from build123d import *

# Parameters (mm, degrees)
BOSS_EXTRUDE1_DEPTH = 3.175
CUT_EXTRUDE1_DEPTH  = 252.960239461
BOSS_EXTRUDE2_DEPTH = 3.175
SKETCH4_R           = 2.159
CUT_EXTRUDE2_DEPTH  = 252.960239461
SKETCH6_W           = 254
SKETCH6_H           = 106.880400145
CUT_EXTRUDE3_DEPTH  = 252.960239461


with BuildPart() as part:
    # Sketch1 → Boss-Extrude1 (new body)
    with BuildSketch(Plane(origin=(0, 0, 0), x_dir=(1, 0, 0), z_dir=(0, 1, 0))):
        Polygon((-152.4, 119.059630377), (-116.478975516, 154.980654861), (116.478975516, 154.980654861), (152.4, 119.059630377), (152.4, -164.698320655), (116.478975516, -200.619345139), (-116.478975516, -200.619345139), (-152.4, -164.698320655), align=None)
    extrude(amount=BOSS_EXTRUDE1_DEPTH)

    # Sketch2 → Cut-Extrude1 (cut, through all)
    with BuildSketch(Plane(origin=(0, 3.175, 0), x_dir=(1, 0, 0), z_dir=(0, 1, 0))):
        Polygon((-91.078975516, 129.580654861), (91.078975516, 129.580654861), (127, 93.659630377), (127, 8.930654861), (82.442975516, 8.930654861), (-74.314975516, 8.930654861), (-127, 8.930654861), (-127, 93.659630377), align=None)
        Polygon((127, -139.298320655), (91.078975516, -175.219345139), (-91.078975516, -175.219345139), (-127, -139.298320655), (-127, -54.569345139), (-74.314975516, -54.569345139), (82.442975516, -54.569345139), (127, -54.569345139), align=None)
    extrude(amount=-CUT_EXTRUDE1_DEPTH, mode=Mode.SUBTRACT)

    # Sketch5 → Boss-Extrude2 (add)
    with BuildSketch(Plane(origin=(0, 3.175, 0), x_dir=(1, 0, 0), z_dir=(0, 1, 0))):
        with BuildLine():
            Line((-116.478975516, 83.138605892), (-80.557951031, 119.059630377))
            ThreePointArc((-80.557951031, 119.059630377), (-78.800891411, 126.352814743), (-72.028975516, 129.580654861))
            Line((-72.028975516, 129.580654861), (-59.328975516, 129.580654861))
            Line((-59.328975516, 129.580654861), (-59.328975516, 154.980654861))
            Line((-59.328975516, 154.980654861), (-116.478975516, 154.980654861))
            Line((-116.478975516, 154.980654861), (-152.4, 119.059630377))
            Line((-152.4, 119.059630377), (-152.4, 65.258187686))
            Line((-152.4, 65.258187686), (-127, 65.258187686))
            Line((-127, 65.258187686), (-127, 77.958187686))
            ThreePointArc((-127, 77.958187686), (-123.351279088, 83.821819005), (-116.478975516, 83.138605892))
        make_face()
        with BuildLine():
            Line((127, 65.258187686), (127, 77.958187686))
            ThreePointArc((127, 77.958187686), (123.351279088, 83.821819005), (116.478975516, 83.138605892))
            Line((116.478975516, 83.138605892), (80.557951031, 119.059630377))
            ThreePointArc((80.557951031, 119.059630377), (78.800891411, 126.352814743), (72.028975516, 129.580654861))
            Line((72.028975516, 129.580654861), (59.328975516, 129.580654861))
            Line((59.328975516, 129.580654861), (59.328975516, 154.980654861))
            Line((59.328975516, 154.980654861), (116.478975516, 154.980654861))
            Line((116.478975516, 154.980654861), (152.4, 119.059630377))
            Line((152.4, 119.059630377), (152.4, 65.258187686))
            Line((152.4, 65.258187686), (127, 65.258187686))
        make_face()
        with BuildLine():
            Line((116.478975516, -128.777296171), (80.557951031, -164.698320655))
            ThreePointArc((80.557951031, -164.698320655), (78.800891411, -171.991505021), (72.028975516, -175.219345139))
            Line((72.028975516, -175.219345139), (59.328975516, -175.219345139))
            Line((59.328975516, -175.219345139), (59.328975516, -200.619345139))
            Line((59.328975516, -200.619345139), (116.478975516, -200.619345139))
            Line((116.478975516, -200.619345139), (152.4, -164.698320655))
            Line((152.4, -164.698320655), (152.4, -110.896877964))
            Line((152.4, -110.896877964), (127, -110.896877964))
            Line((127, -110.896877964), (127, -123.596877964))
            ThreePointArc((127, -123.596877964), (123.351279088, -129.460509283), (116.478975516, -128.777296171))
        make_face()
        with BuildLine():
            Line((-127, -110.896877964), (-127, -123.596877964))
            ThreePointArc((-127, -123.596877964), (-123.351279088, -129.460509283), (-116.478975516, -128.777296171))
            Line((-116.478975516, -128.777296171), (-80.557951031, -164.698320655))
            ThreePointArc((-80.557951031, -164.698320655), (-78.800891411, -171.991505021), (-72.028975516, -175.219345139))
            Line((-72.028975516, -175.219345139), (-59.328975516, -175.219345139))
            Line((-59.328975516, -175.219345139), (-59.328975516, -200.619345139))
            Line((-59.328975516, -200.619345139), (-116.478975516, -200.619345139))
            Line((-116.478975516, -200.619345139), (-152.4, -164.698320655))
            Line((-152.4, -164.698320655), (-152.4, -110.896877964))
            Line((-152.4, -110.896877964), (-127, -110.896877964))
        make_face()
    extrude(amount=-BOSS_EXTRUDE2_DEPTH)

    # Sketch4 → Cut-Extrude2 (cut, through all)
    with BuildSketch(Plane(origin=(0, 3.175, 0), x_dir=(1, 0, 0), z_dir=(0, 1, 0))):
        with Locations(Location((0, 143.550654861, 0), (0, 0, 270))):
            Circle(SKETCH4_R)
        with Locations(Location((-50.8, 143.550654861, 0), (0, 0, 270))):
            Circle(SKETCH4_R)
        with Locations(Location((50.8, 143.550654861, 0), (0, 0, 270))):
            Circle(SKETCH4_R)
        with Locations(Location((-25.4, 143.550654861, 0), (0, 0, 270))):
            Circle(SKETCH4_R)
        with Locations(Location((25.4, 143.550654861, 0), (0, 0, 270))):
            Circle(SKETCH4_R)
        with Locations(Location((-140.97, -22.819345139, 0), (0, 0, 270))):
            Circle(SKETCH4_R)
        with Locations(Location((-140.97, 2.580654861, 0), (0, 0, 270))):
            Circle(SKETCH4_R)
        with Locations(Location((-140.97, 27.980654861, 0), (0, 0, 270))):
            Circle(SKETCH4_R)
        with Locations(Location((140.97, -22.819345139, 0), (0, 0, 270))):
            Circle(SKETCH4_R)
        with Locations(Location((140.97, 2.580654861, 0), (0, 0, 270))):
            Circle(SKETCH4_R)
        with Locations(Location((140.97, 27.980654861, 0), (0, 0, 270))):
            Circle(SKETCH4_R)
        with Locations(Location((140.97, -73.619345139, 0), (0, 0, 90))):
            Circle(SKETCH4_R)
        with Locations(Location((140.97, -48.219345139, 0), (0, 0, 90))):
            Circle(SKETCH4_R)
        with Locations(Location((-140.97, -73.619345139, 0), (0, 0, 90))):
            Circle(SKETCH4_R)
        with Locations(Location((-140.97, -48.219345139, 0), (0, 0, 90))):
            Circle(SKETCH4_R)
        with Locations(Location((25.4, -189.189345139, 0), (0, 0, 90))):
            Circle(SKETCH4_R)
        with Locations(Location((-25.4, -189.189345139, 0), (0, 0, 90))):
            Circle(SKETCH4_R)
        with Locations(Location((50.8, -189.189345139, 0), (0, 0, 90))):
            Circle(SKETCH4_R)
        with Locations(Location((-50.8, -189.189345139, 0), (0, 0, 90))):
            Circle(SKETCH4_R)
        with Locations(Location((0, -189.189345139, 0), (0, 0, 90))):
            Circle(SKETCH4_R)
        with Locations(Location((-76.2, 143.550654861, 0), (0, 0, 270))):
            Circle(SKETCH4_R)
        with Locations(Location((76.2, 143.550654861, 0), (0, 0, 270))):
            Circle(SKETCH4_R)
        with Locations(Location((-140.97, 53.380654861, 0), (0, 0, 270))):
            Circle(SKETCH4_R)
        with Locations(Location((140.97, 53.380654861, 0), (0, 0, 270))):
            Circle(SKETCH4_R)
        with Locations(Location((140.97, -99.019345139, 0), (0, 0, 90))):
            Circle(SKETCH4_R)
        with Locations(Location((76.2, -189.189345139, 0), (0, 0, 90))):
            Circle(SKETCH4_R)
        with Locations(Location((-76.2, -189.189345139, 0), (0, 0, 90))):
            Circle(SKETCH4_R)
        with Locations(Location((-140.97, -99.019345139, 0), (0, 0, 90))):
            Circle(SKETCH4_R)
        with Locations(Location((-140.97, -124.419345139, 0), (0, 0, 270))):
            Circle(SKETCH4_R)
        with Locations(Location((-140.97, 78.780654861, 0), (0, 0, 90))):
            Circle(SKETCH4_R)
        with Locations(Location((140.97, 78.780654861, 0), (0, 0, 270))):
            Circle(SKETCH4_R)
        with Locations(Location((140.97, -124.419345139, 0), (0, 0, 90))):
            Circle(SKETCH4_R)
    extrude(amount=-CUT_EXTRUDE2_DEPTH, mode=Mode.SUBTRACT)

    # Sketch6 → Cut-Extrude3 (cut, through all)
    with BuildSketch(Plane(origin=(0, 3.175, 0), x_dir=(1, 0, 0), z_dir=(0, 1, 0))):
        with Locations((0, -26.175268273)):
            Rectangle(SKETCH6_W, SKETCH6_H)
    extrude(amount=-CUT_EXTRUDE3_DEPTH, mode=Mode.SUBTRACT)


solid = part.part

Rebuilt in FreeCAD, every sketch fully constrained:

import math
import FreeCAD as App
import Part
import Sketcher

V = App.Vector
Q = App.Units.Quantity

doc = App.newDocument("Part")
body = doc.addObject("PartDesign::Body", "Body")

# Sketch on XZ plane
sketch1 = body.newObject("Sketcher::SketchObject", "Sketch")
sketch1.AttachmentSupport = (doc.getObject("XZ_Plane"), [""])
sketch1.MapMode = "FlatFace"
sketch1.addGeometry(Part.LineSegment(V(-116, -155, 0), V(-152, -119, 0)), False)
sketch1.addGeometry(Part.LineSegment(V(-152, -119, 0), V(-152, 165, 0)), False)
sketch1.addGeometry(Part.LineSegment(V(-152, 165, 0), V(-116, 201, 0)), False)
sketch1.addGeometry(Part.LineSegment(V(-116, 201, 0), V(116, 201, 0)), False)
sketch1.addGeometry(Part.LineSegment(V(116, 201, 0), V(152, 165, 0)), False)
sketch1.addGeometry(Part.LineSegment(V(152, 165, 0), V(152, -119, 0)), False)
sketch1.addGeometry(Part.LineSegment(V(152, -119, 0), V(116, -155, 0)), False)
sketch1.addGeometry(Part.LineSegment(V(116, -155, 0), V(-116, -155, 0)), False)
sketch1.addConstraint(Sketcher.Constraint("Coincident", 0, 2, 1, 1))
sketch1.addConstraint(Sketcher.Constraint("Coincident", 1, 2, 2, 1))
sketch1.addConstraint(Sketcher.Constraint("Coincident", 2, 2, 3, 1))
sketch1.addConstraint(Sketcher.Constraint("Coincident", 3, 2, 4, 1))
sketch1.addConstraint(Sketcher.Constraint("Coincident", 4, 2, 5, 1))
sketch1.addConstraint(Sketcher.Constraint("Coincident", 5, 2, 6, 1))
sketch1.addConstraint(Sketcher.Constraint("Coincident", 6, 2, 7, 1))
sketch1.addConstraint(Sketcher.Constraint("Coincident", 7, 2, 0, 1))
sketch1.addConstraint(Sketcher.Constraint("Vertical", 1))
sketch1.addConstraint(Sketcher.Constraint("Horizontal", 3))
sketch1.addConstraint(Sketcher.Constraint("Vertical", 5))
sketch1.addConstraint(Sketcher.Constraint("Horizontal", 7))
sketch1.addConstraint(Sketcher.Constraint("Symmetric", 1, 2, 4, 2, -2))
sketch1.addConstraint(Sketcher.Constraint("Perpendicular", 0, 2))
sketch1.addConstraint(Sketcher.Constraint("Perpendicular", 2, 4))
sketch1.addConstraint(Sketcher.Constraint("Perpendicular", 4, 6))
sketch1.addConstraint(Sketcher.Constraint("Horizontal", 0, 2, 5, 2))
sketch1.addConstraint(Sketcher.Constraint("Vertical", 3, 2, 6, 2))
sketch1.addConstraint(Sketcher.Constraint("Vertical", 2, 2, 7, 2))
sketch1.addConstraint(Sketcher.Constraint("Distance", 0, Q("2 in")))
sketch1.addConstraint(Sketcher.Constraint("DistanceX", 0, 2, -1, 1, Q("6 in")))
sketch1.addConstraint(Sketcher.Constraint("DistanceY", 6, 2, 3, 2, Q("14 in")))
sketch1.addConstraint(Sketcher.Constraint("DistanceY", 0, 2, -1, 1, Q("119.05963 mm")))
pad1 = body.newObject("PartDesign::Pad", "Pad")
pad1.Profile = sketch1
pad1.Length = Q("0.125 in")
pad1.Reversed = True

# Sketch on XZ plane
sketch2 = body.newObject("Sketcher::SketchObject", "Sketch001")
sketch2.AttachmentSupport = (doc.getObject("XZ_Plane"), [""])
sketch2.MapMode = "FlatFace"
sketch2.AttachmentOffset = App.Placement(V(0, 0, -0.125 * 25.4), App.Rotation())
sketch2.addGeometry(Part.LineSegment(V(91, -130, 0), V(-91, -130, 0)), False)
sketch2.addGeometry(Part.LineSegment(V(-91, -130, 0), V(-127, -94, 0)), False)
sketch2.addGeometry(Part.LineSegment(V(-127, -94, 0), V(-127, -9, 0)), False)
sketch2.addGeometry(Part.LineSegment(V(-127, -9, 0), V(127, -9, 0)), False)
sketch2.addGeometry(Part.LineSegment(V(127, -9, 0), V(127, -94, 0)), False)
sketch2.addGeometry(Part.LineSegment(V(127, -94, 0), V(91, -130, 0)), False)
sketch2.addGeometry(Part.LineSegment(V(91, 175, 0), V(127, 139, 0)), False)
sketch2.addGeometry(Part.LineSegment(V(127, 139, 0), V(127, 55, 0)), False)
sketch2.addGeometry(Part.LineSegment(V(127, 55, 0), V(-127, 55, 0)), False)
sketch2.addGeometry(Part.LineSegment(V(-127, 55, 0), V(-127, 139, 0)), False)
sketch2.addGeometry(Part.LineSegment(V(-127, 139, 0), V(-91, 175, 0)), False)
sketch2.addGeometry(Part.LineSegment(V(-91, 175, 0), V(91, 175, 0)), False)
sketch2.addConstraint(Sketcher.Constraint("Coincident", 0, 2, 1, 1))
sketch2.addConstraint(Sketcher.Constraint("Coincident", 1, 2, 2, 1))
sketch2.addConstraint(Sketcher.Constraint("Coincident", 2, 2, 3, 1))
sketch2.addConstraint(Sketcher.Constraint("Coincident", 3, 2, 4, 1))
sketch2.addConstraint(Sketcher.Constraint("Coincident", 4, 2, 5, 1))
sketch2.addConstraint(Sketcher.Constraint("Coincident", 5, 2, 0, 1))
sketch2.addConstraint(Sketcher.Constraint("Coincident", 6, 2, 7, 1))
sketch2.addConstraint(Sketcher.Constraint("Coincident", 7, 2, 8, 1))
sketch2.addConstraint(Sketcher.Constraint("Coincident", 8, 2, 9, 1))
sketch2.addConstraint(Sketcher.Constraint("Coincident", 9, 2, 10, 1))
sketch2.addConstraint(Sketcher.Constraint("Coincident", 10, 2, 11, 1))
sketch2.addConstraint(Sketcher.Constraint("Coincident", 11, 2, 6, 1))
sketch2.addConstraint(Sketcher.Constraint("Horizontal", 0))
sketch2.addConstraint(Sketcher.Constraint("Vertical", 2))
sketch2.addConstraint(Sketcher.Constraint("Horizontal", 3))
sketch2.addConstraint(Sketcher.Constraint("Vertical", 4))
sketch2.addConstraint(Sketcher.Constraint("Vertical", 7))
sketch2.addConstraint(Sketcher.Constraint("Horizontal", 8))
sketch2.addConstraint(Sketcher.Constraint("Vertical", 9))
sketch2.addConstraint(Sketcher.Constraint("Horizontal", 11))
sketch2.addConstraint(Sketcher.Constraint("Symmetric", 1, 2, 4, 2, -2))
sketch2.addConstraint(Sketcher.Constraint("Symmetric", 6, 2, 9, 2, -2))
sketch2.addConstraint(Sketcher.Constraint("Perpendicular", 1, 5))
sketch2.addConstraint(Sketcher.Constraint("Perpendicular", 5, 6))
sketch2.addConstraint(Sketcher.Constraint("Perpendicular", 6, 10))
sketch2.addConstraint(Sketcher.Constraint("Vertical", 4, 2, 6, 2))
sketch2.addConstraint(Sketcher.Constraint("Vertical", 0, 2, 10, 2))
sketch2.addConstraint(Sketcher.Constraint("Vertical", 5, 2, 11, 2))
sketch2.addConstraint(Sketcher.Constraint("Equal", 4, 7))
sketch2.addConstraint(Sketcher.Constraint("DistanceX", 3, 1, 3, 2, Q("10 in")))
sketch2.addConstraint(Sketcher.Constraint("Distance", 1, Q("2 in")))
sketch2.addConstraint(Sketcher.Constraint("DistanceY", 3, 2, 7, 2, Q("2.5 in")))
sketch2.addConstraint(Sketcher.Constraint("DistanceY", 0, 2, 2, 2, Q("4.75 in")))
sketch2.addConstraint(Sketcher.Constraint("DistanceY", 1, 2, -1, 1, Q("93.65963 mm")))
pocket1 = body.newObject("PartDesign::Pocket", "Pocket")
pocket1.Profile = sketch2
pocket1.Type = "ThroughAll"
pocket1.Reversed = True

# Sketch on XZ plane
sketch3 = body.newObject("Sketcher::SketchObject", "Sketch002")
sketch3.AttachmentSupport = (doc.getObject("XZ_Plane"), [""])
sketch3.MapMode = "FlatFace"
sketch3.AttachmentOffset = App.Placement(V(0, 0, -0.125 * 25.4), App.Rotation())
sketch3.addGeometry(Part.LineSegment(V(-116, -83, 0), V(-81, -119, 0)), False)
sketch3.addGeometry(Part.ArcOfCircle(Part.Circle(V(-72, -121, 0), V(0, 0, 1), 9), math.radians(168), math.radians(270)), False)
sketch3.addGeometry(Part.LineSegment(V(-72, -130, 0), V(-59, -130, 0)), False)
sketch3.addGeometry(Part.LineSegment(V(-59, -130, 0), V(-59, -155, 0)), False)
sketch3.addGeometry(Part.LineSegment(V(-59, -155, 0), V(-116, -155, 0)), False)
sketch3.addGeometry(Part.LineSegment(V(-116, -155, 0), V(-152, -119, 0)), False)
sketch3.addGeometry(Part.LineSegment(V(-152, -119, 0), V(-152, -65, 0)), False)
sketch3.addGeometry(Part.LineSegment(V(-152, -65, 0), V(-127, -65, 0)), False)
sketch3.addGeometry(Part.LineSegment(V(-127, -65, 0), V(-127, -78, 0)), False)
sketch3.addGeometry(Part.ArcOfCircle(Part.Circle(V(-120, -78, 0), V(0, 0, 1), 7), math.radians(180), math.radians(308)), False)
sketch3.addGeometry(Part.LineSegment(V(127, -78, 0), V(127, -65, 0)), False)
sketch3.addGeometry(Part.LineSegment(V(127, -65, 0), V(152, -65, 0)), False)
sketch3.addGeometry(Part.LineSegment(V(152, -65, 0), V(152, -119, 0)), False)
sketch3.addGeometry(Part.LineSegment(V(152, -119, 0), V(116, -155, 0)), False)
sketch3.addGeometry(Part.LineSegment(V(116, -155, 0), V(59, -155, 0)), False)
sketch3.addGeometry(Part.LineSegment(V(59, -155, 0), V(59, -130, 0)), False)
sketch3.addGeometry(Part.LineSegment(V(59, -130, 0), V(72, -130, 0)), False)
sketch3.addGeometry(Part.ArcOfCircle(Part.Circle(V(72, -121, 0), V(0, 0, 1), 9), math.radians(-90), math.radians(12)), False)
sketch3.addGeometry(Part.LineSegment(V(81, -119, 0), V(116, -83, 0)), False)
sketch3.addGeometry(Part.ArcOfCircle(Part.Circle(V(120, -78, 0), V(0, 0, 1), 7), math.radians(-128), math.radians(0)), False)
sketch3.addGeometry(Part.LineSegment(V(116, 129, 0), V(81, 165, 0)), False)
sketch3.addGeometry(Part.ArcOfCircle(Part.Circle(V(72, 167, 0), V(0, 0, 1), 9), math.radians(-12), math.radians(90)), False)
sketch3.addGeometry(Part.LineSegment(V(72, 175, 0), V(59, 175, 0)), False)
sketch3.addGeometry(Part.LineSegment(V(59, 175, 0), V(59, 201, 0)), False)
sketch3.addGeometry(Part.LineSegment(V(59, 201, 0), V(116, 201, 0)), False)
sketch3.addGeometry(Part.LineSegment(V(116, 201, 0), V(152, 165, 0)), False)
sketch3.addGeometry(Part.LineSegment(V(152, 165, 0), V(152, 111, 0)), False)
sketch3.addGeometry(Part.LineSegment(V(152, 111, 0), V(127, 111, 0)), False)
sketch3.addGeometry(Part.LineSegment(V(127, 111, 0), V(127, 124, 0)), False)
sketch3.addGeometry(Part.ArcOfCircle(Part.Circle(V(120, 124, 0), V(0, 0, 1), 7), math.radians(0), math.radians(128)), False)
sketch3.addGeometry(Part.LineSegment(V(-127, 124, 0), V(-127, 111, 0)), False)
sketch3.addGeometry(Part.LineSegment(V(-127, 111, 0), V(-152, 111, 0)), False)
sketch3.addGeometry(Part.LineSegment(V(-152, 111, 0), V(-152, 165, 0)), False)
sketch3.addGeometry(Part.LineSegment(V(-152, 165, 0), V(-116, 201, 0)), False)
sketch3.addGeometry(Part.LineSegment(V(-116, 201, 0), V(-59, 201, 0)), False)
sketch3.addGeometry(Part.LineSegment(V(-59, 201, 0), V(-59, 175, 0)), False)
sketch3.addGeometry(Part.LineSegment(V(-59, 175, 0), V(-72, 175, 0)), False)
sketch3.addGeometry(Part.ArcOfCircle(Part.Circle(V(-72, 167, 0), V(0, 0, 1), 9), math.radians(90), math.radians(192)), False)
sketch3.addGeometry(Part.LineSegment(V(-81, 165, 0), V(-116, 129, 0)), False)
sketch3.addGeometry(Part.ArcOfCircle(Part.Circle(V(-120, 124, 0), V(0, 0, 1), 7), math.radians(52), math.radians(180)), False)
sketch3.addConstraint(Sketcher.Constraint("Coincident", 0, 2, 1, 1))
sketch3.addConstraint(Sketcher.Constraint("Tangent", 1, 2, 2, 1))
sketch3.addConstraint(Sketcher.Constraint("Coincident", 2, 2, 3, 1))
sketch3.addConstraint(Sketcher.Constraint("Coincident", 3, 2, 4, 1))
sketch3.addConstraint(Sketcher.Constraint("Coincident", 4, 2, 5, 1))
sketch3.addConstraint(Sketcher.Constraint("Coincident", 5, 2, 6, 1))
sketch3.addConstraint(Sketcher.Constraint("Coincident", 6, 2, 7, 1))
sketch3.addConstraint(Sketcher.Constraint("Coincident", 7, 2, 8, 1))
sketch3.addConstraint(Sketcher.Constraint("Tangent", 8, 2, 9, 1))
sketch3.addConstraint(Sketcher.Constraint("Coincident", 9, 2, 0, 1))
sketch3.addConstraint(Sketcher.Constraint("Coincident", 10, 2, 11, 1))
sketch3.addConstraint(Sketcher.Constraint("Coincident", 11, 2, 12, 1))
sketch3.addConstraint(Sketcher.Constraint("Coincident", 12, 2, 13, 1))
sketch3.addConstraint(Sketcher.Constraint("Coincident", 13, 2, 14, 1))
sketch3.addConstraint(Sketcher.Constraint("Coincident", 14, 2, 15, 1))
sketch3.addConstraint(Sketcher.Constraint("Coincident", 15, 2, 16, 1))
sketch3.addConstraint(Sketcher.Constraint("Tangent", 16, 2, 17, 1))
sketch3.addConstraint(Sketcher.Constraint("Coincident", 17, 2, 18, 1))
sketch3.addConstraint(Sketcher.Constraint("Coincident", 18, 2, 19, 1))
sketch3.addConstraint(Sketcher.Constraint("Tangent", 19, 2, 10, 1))
sketch3.addConstraint(Sketcher.Constraint("Coincident", 20, 2, 21, 1))
sketch3.addConstraint(Sketcher.Constraint("Tangent", 21, 2, 22, 1))
sketch3.addConstraint(Sketcher.Constraint("Coincident", 22, 2, 23, 1))
sketch3.addConstraint(Sketcher.Constraint("Coincident", 23, 2, 24, 1))
sketch3.addConstraint(Sketcher.Constraint("Coincident", 24, 2, 25, 1))
sketch3.addConstraint(Sketcher.Constraint("Coincident", 25, 2, 26, 1))
sketch3.addConstraint(Sketcher.Constraint("Coincident", 26, 2, 27, 1))
sketch3.addConstraint(Sketcher.Constraint("Coincident", 27, 2, 28, 1))
sketch3.addConstraint(Sketcher.Constraint("Tangent", 28, 2, 29, 1))
sketch3.addConstraint(Sketcher.Constraint("Coincident", 29, 2, 20, 1))
sketch3.addConstraint(Sketcher.Constraint("Coincident", 30, 2, 31, 1))
sketch3.addConstraint(Sketcher.Constraint("Coincident", 31, 2, 32, 1))
sketch3.addConstraint(Sketcher.Constraint("Coincident", 32, 2, 33, 1))
sketch3.addConstraint(Sketcher.Constraint("Coincident", 33, 2, 34, 1))
sketch3.addConstraint(Sketcher.Constraint("Coincident", 34, 2, 35, 1))
sketch3.addConstraint(Sketcher.Constraint("Coincident", 35, 2, 36, 1))
sketch3.addConstraint(Sketcher.Constraint("Tangent", 36, 2, 37, 1))
sketch3.addConstraint(Sketcher.Constraint("Coincident", 37, 2, 38, 1))
sketch3.addConstraint(Sketcher.Constraint("Coincident", 38, 2, 39, 1))
sketch3.addConstraint(Sketcher.Constraint("Tangent", 39, 2, 30, 1))
sketch3.addConstraint(Sketcher.Constraint("Horizontal", 2))
sketch3.addConstraint(Sketcher.Constraint("Vertical", 3))
sketch3.addConstraint(Sketcher.Constraint("Horizontal", 4))
sketch3.addConstraint(Sketcher.Constraint("Vertical", 6))
sketch3.addConstraint(Sketcher.Constraint("Horizontal", 7))
sketch3.addConstraint(Sketcher.Constraint("Vertical", 8))
sketch3.addConstraint(Sketcher.Constraint("Vertical", 10))
sketch3.addConstraint(Sketcher.Constraint("Horizontal", 11))
sketch3.addConstraint(Sketcher.Constraint("Vertical", 12))
sketch3.addConstraint(Sketcher.Constraint("Horizontal", 14))
sketch3.addConstraint(Sketcher.Constraint("Vertical", 15))
sketch3.addConstraint(Sketcher.Constraint("Horizontal", 16))
sketch3.addConstraint(Sketcher.Constraint("Horizontal", 22))
sketch3.addConstraint(Sketcher.Constraint("Vertical", 23))
sketch3.addConstraint(Sketcher.Constraint("Horizontal", 24))
sketch3.addConstraint(Sketcher.Constraint("Vertical", 26))
sketch3.addConstraint(Sketcher.Constraint("Horizontal", 27))
sketch3.addConstraint(Sketcher.Constraint("Vertical", 28))
sketch3.addConstraint(Sketcher.Constraint("Vertical", 30))
sketch3.addConstraint(Sketcher.Constraint("Horizontal", 31))
sketch3.addConstraint(Sketcher.Constraint("Vertical", 32))
sketch3.addConstraint(Sketcher.Constraint("Horizontal", 34))
sketch3.addConstraint(Sketcher.Constraint("Vertical", 35))
sketch3.addConstraint(Sketcher.Constraint("Horizontal", 36))
sketch3.addConstraint(Sketcher.Constraint("Equal", 1, 17))
sketch3.addConstraint(Sketcher.Constraint("Equal", 9, 19))
sketch3.addConstraint(Sketcher.Constraint("Equal", 17, 21))
sketch3.addConstraint(Sketcher.Constraint("Equal", 19, 29))
sketch3.addConstraint(Sketcher.Constraint("Equal", 21, 37))
sketch3.addConstraint(Sketcher.Constraint("Equal", 29, 39))
sketch3.addConstraint(Sketcher.Constraint("Symmetric", 1, 3, 17, 3, -2))
sketch3.addConstraint(Sketcher.Constraint("Symmetric", 9, 3, 19, 3, -2))
sketch3.addConstraint(Sketcher.Constraint("Symmetric", 21, 3, 37, 3, -2))
sketch3.addConstraint(Sketcher.Constraint("Symmetric", 29, 3, 39, 3, -2))
sketch3.addConstraint(Sketcher.Constraint("Symmetric", 6, 2, 11, 2, -2))
sketch3.addConstraint(Sketcher.Constraint("Symmetric", 4, 2, 13, 2, -2))
sketch3.addConstraint(Sketcher.Constraint("Symmetric", 26, 2, 31, 2, -2))
sketch3.addConstraint(Sketcher.Constraint("Symmetric", 24, 2, 33, 2, -2))
sketch3.addConstraint(Sketcher.Constraint("Parallel", 0, 5))
sketch3.addConstraint(Sketcher.Constraint("Perpendicular", 5, 13))
sketch3.addConstraint(Sketcher.Constraint("Parallel", 13, 18))
sketch3.addConstraint(Sketcher.Constraint("Perpendicular", 18, 20))
sketch3.addConstraint(Sketcher.Constraint("Parallel", 20, 25))
sketch3.addConstraint(Sketcher.Constraint("Perpendicular", 25, 33))
sketch3.addConstraint(Sketcher.Constraint("Parallel", 33, 38))
sketch3.addConstraint(Sketcher.Constraint("Horizontal", 0, 2, 5, 2))
sketch3.addConstraint(Sketcher.Constraint("Horizontal", 5, 2, 12, 2))
sketch3.addConstraint(Sketcher.Constraint("Horizontal", 12, 2, 17, 2))
sketch3.addConstraint(Sketcher.Constraint("Horizontal", 20, 2, 25, 2))
sketch3.addConstraint(Sketcher.Constraint("Horizontal", 32, 2, 37, 2))
sketch3.addConstraint(Sketcher.Constraint("Vertical", 17, 3, 21, 3))
sketch3.addConstraint(Sketcher.Constraint("Vertical", 19, 3, 29, 3))
sketch3.addConstraint(Sketcher.Constraint("Vertical", 4, 2, 9, 2))
sketch3.addConstraint(Sketcher.Constraint("Vertical", 17, 2, 20, 2))
sketch3.addConstraint(Sketcher.Constraint("Vertical", 15, 2, 22, 2))
sketch3.addConstraint(Sketcher.Constraint("Vertical", 18, 2, 24, 2))
sketch3.addConstraint(Sketcher.Constraint("Vertical", 12, 2, 25, 2))
sketch3.addConstraint(Sketcher.Constraint("Vertical", 24, 2, 29, 2))
sketch3.addConstraint(Sketcher.Constraint("Vertical", 3, 2, 34, 2))
sketch3.addConstraint(Sketcher.Constraint("Equal", 4, 14))
sketch3.addConstraint(Sketcher.Constraint("Equal", 31, 3))
sketch3.addConstraint(Sketcher.Constraint("Equal", 36, 8))
sketch3.addConstraint(Sketcher.Constraint("Equal", 12, 26))
sketch3.addConstraint(Sketcher.Constraint("Equal", 0, 5))
sketch3.addConstraint(Sketcher.Constraint("DistanceX", 7, 1, 7, 2, Q("1 in")))
sketch3.addConstraint(Sketcher.Constraint("Distance", 0, Q("2 in")))
sketch3.addConstraint(Sketcher.Constraint("DistanceX", 2, 1, 2, 2, Q("0.5 in")))
sketch3.addConstraint(Sketcher.Constraint("DistanceX", 5, 2, -1, 1, Q("6 in")))
sketch3.addConstraint(Sketcher.Constraint("DistanceX", 4, 2, 4, 1, Q("2.25 in")))
sketch3.addConstraint(Sketcher.Constraint("Radius", 9, Q("6.535898 mm")))
sketch3.addConstraint(Sketcher.Constraint("DistanceY", 0, 2, -1, 1, Q("119.05963 mm")))
sketch3.addConstraint(Sketcher.Constraint("DistanceY", -1, 1, 20, 2, Q("164.698321 mm")))
pad2 = body.newObject("PartDesign::Pad", "Pad001")
pad2.Profile = sketch3
pad2.Length = Q("0.125 in")

# Sketch on XZ plane
sketch4 = body.newObject("Sketcher::SketchObject", "Sketch003")
sketch4.AttachmentSupport = (doc.getObject("XZ_Plane"), [""])
sketch4.MapMode = "FlatFace"
sketch4.AttachmentOffset = App.Placement(V(0, 0, -0.125 * 25.4), App.Rotation())
sketch4.addGeometry(Part.Circle(V(0, -143.6, 0), V(0, 0, 1), 2.2), False)
sketch4.addGeometry(Part.Circle(V(-50.8, -143.6, 0), V(0, 0, 1), 2.2), False)
sketch4.addGeometry(Part.Circle(V(50.8, -143.6, 0), V(0, 0, 1), 2.2), False)
sketch4.addGeometry(Part.Circle(V(-25.4, -143.6, 0), V(0, 0, 1), 2.2), False)
sketch4.addGeometry(Part.Circle(V(25.4, -143.6, 0), V(0, 0, 1), 2.2), False)
sketch4.addGeometry(Part.Circle(V(-141, 22.8, 0), V(0, 0, 1), 2.2), False)
sketch4.addGeometry(Part.Circle(V(-141, -2.6, 0), V(0, 0, 1), 2.2), False)
sketch4.addGeometry(Part.Circle(V(-141, -28, 0), V(0, 0, 1), 2.2), False)
sketch4.addGeometry(Part.Circle(V(141, 22.8, 0), V(0, 0, 1), 2.2), False)
sketch4.addGeometry(Part.Circle(V(141, -2.6, 0), V(0, 0, 1), 2.2), False)
sketch4.addGeometry(Part.Circle(V(141, -28, 0), V(0, 0, 1), 2.2), False)
sketch4.addGeometry(Part.Circle(V(141, 73.6, 0), V(0, 0, 1), 2.2), False)
sketch4.addGeometry(Part.Circle(V(141, 48.2, 0), V(0, 0, 1), 2.2), False)
sketch4.addGeometry(Part.Circle(V(-141, 73.6, 0), V(0, 0, 1), 2.2), False)
sketch4.addGeometry(Part.Circle(V(-141, 48.2, 0), V(0, 0, 1), 2.2), False)
sketch4.addGeometry(Part.Circle(V(25.4, 189.2, 0), V(0, 0, 1), 2.2), False)
sketch4.addGeometry(Part.Circle(V(-25.4, 189.2, 0), V(0, 0, 1), 2.2), False)
sketch4.addGeometry(Part.Circle(V(50.8, 189.2, 0), V(0, 0, 1), 2.2), False)
sketch4.addGeometry(Part.Circle(V(-50.8, 189.2, 0), V(0, 0, 1), 2.2), False)
sketch4.addGeometry(Part.Circle(V(0, 189.2, 0), V(0, 0, 1), 2.2), False)
sketch4.addGeometry(Part.Circle(V(-76.2, -143.6, 0), V(0, 0, 1), 2.2), False)
sketch4.addGeometry(Part.Circle(V(76.2, -143.6, 0), V(0, 0, 1), 2.2), False)
sketch4.addGeometry(Part.Circle(V(-141, -53.4, 0), V(0, 0, 1), 2.2), False)
sketch4.addGeometry(Part.Circle(V(141, -53.4, 0), V(0, 0, 1), 2.2), False)
sketch4.addGeometry(Part.Circle(V(141, 99, 0), V(0, 0, 1), 2.2), False)
sketch4.addGeometry(Part.Circle(V(76.2, 189.2, 0), V(0, 0, 1), 2.2), False)
sketch4.addGeometry(Part.Circle(V(-76.2, 189.2, 0), V(0, 0, 1), 2.2), False)
sketch4.addGeometry(Part.Circle(V(-141, 99, 0), V(0, 0, 1), 2.2), False)
sketch4.addGeometry(Part.Circle(V(-141, 124.4, 0), V(0, 0, 1), 2.2), False)
sketch4.addGeometry(Part.Circle(V(-141, -78.8, 0), V(0, 0, 1), 2.2), False)
sketch4.addGeometry(Part.Circle(V(141, -78.8, 0), V(0, 0, 1), 2.2), False)
sketch4.addGeometry(Part.Circle(V(141, 124.4, 0), V(0, 0, 1), 2.2), False)
sketch4.addConstraint(Sketcher.Constraint("Equal", 0, 1))
sketch4.addConstraint(Sketcher.Constraint("Equal", 1, 2))
sketch4.addConstraint(Sketcher.Constraint("Equal", 2, 3))
sketch4.addConstraint(Sketcher.Constraint("Equal", 3, 4))
sketch4.addConstraint(Sketcher.Constraint("Equal", 4, 5))
sketch4.addConstraint(Sketcher.Constraint("Equal", 5, 6))
sketch4.addConstraint(Sketcher.Constraint("Equal", 6, 7))
sketch4.addConstraint(Sketcher.Constraint("Equal", 7, 8))
sketch4.addConstraint(Sketcher.Constraint("Equal", 8, 9))
sketch4.addConstraint(Sketcher.Constraint("Equal", 9, 10))
sketch4.addConstraint(Sketcher.Constraint("Equal", 10, 11))
sketch4.addConstraint(Sketcher.Constraint("Equal", 11, 12))
sketch4.addConstraint(Sketcher.Constraint("Equal", 12, 13))
sketch4.addConstraint(Sketcher.Constraint("Equal", 13, 14))
sketch4.addConstraint(Sketcher.Constraint("Equal", 14, 15))
sketch4.addConstraint(Sketcher.Constraint("Equal", 15, 16))
sketch4.addConstraint(Sketcher.Constraint("Equal", 16, 17))
sketch4.addConstraint(Sketcher.Constraint("Equal", 17, 18))
sketch4.addConstraint(Sketcher.Constraint("Equal", 18, 19))
sketch4.addConstraint(Sketcher.Constraint("Equal", 19, 20))
sketch4.addConstraint(Sketcher.Constraint("Equal", 20, 21))
sketch4.addConstraint(Sketcher.Constraint("Equal", 21, 22))
sketch4.addConstraint(Sketcher.Constraint("Equal", 22, 23))
sketch4.addConstraint(Sketcher.Constraint("Equal", 23, 24))
sketch4.addConstraint(Sketcher.Constraint("Equal", 24, 25))
sketch4.addConstraint(Sketcher.Constraint("Equal", 25, 26))
sketch4.addConstraint(Sketcher.Constraint("Equal", 26, 27))
sketch4.addConstraint(Sketcher.Constraint("Equal", 27, 28))
sketch4.addConstraint(Sketcher.Constraint("Equal", 28, 29))
sketch4.addConstraint(Sketcher.Constraint("Equal", 29, 30))
sketch4.addConstraint(Sketcher.Constraint("Equal", 30, 31))
sketch4.addConstraint(Sketcher.Constraint("Symmetric", 1, 3, 2, 3, -2))
sketch4.addConstraint(Sketcher.Constraint("Symmetric", 3, 3, 4, 3, -2))
sketch4.addConstraint(Sketcher.Constraint("Symmetric", 5, 3, 8, 3, -2))
sketch4.addConstraint(Sketcher.Constraint("Symmetric", 6, 3, 9, 3, -2))
sketch4.addConstraint(Sketcher.Constraint("Symmetric", 7, 3, 10, 3, -2))
sketch4.addConstraint(Sketcher.Constraint("Symmetric", 11, 3, 13, 3, -2))
sketch4.addConstraint(Sketcher.Constraint("Symmetric", 12, 3, 14, 3, -2))
sketch4.addConstraint(Sketcher.Constraint("Symmetric", 15, 3, 16, 3, -2))
sketch4.addConstraint(Sketcher.Constraint("Symmetric", 17, 3, 18, 3, -2))
sketch4.addConstraint(Sketcher.Constraint("Symmetric", 20, 3, 21, 3, -2))
sketch4.addConstraint(Sketcher.Constraint("Symmetric", 22, 3, 23, 3, -2))
sketch4.addConstraint(Sketcher.Constraint("Symmetric", 25, 3, 26, 3, -2))
sketch4.addConstraint(Sketcher.Constraint("Symmetric", 24, 3, 27, 3, -2))
sketch4.addConstraint(Sketcher.Constraint("Symmetric", 29, 3, 30, 3, -2))
sketch4.addConstraint(Sketcher.Constraint("Symmetric", 28, 3, 31, 3, -2))
sketch4.addConstraint(Sketcher.Constraint("PointOnObject", 0, 3, -2))
sketch4.addConstraint(Sketcher.Constraint("PointOnObject", 19, 3, -2))
sketch4.addConstraint(Sketcher.Constraint("Horizontal", 0, 3, 1, 3))
sketch4.addConstraint(Sketcher.Constraint("Horizontal", 2, 3, 3, 3))
sketch4.addConstraint(Sketcher.Constraint("Horizontal", 16, 3, 17, 3))
sketch4.addConstraint(Sketcher.Constraint("Horizontal", 18, 3, 19, 3))
sketch4.addConstraint(Sketcher.Constraint("Horizontal", 4, 3, 20, 3))
sketch4.addConstraint(Sketcher.Constraint("Horizontal", 19, 3, 25, 3))
sketch4.addConstraint(Sketcher.Constraint("Vertical", 5, 3, 6, 3))
sketch4.addConstraint(Sketcher.Constraint("Vertical", 6, 3, 7, 3))
sketch4.addConstraint(Sketcher.Constraint("Vertical", 10, 3, 11, 3))
sketch4.addConstraint(Sketcher.Constraint("Vertical", 11, 3, 12, 3))
sketch4.addConstraint(Sketcher.Constraint("Vertical", 4, 3, 15, 3))
sketch4.addConstraint(Sketcher.Constraint("Vertical", 2, 3, 17, 3))
sketch4.addConstraint(Sketcher.Constraint("Vertical", 14, 3, 22, 3))
sketch4.addConstraint(Sketcher.Constraint("Vertical", 23, 3, 24, 3))
sketch4.addConstraint(Sketcher.Constraint("Vertical", 21, 3, 25, 3))
sketch4.addConstraint(Sketcher.Constraint("Vertical", 27, 3, 28, 3))
sketch4.addConstraint(Sketcher.Constraint("Vertical", 28, 3, 29, 3))
sketch4.addConstraint(Sketcher.Constraint("Diameter", 0, Q("0.17 in")))
sketch4.addConstraint(Sketcher.Constraint("DistanceX", 1, 3, -1, 1, Q("2 in")))
sketch4.addConstraint(Sketcher.Constraint("DistanceX", 3, 3, -1, 1, Q("1 in")))
sketch4.addConstraint(Sketcher.Constraint("DistanceX", 20, 3, -1, 1, Q("3 in")))
sketch4.addConstraint(Sketcher.Constraint("DistanceY", 6, 3, 5, 3, Q("1 in")))
sketch4.addConstraint(Sketcher.Constraint("DistanceY", 7, 3, 6, 3, Q("1 in")))
sketch4.addConstraint(Sketcher.Constraint("DistanceY", 8, 3, 11, 3, Q("2 in")))
sketch4.addConstraint(Sketcher.Constraint("DistanceY", 8, 3, 12, 3, Q("1 in")))
sketch4.addConstraint(Sketcher.Constraint("DistanceY", 22, 3, 7, 3, Q("1 in")))
sketch4.addConstraint(Sketcher.Constraint("DistanceY", 11, 3, 24, 3, Q("1 in")))
sketch4.addConstraint(Sketcher.Constraint("DistanceY", 27, 3, 28, 3, Q("1 in")))
sketch4.addConstraint(Sketcher.Constraint("DistanceY", 29, 3, 22, 3, Q("1 in")))
sketch4.addConstraint(Sketcher.Constraint("DistanceX", 5, 3, -1, 1, Q("5.55 in")))
sketch4.addConstraint(Sketcher.Constraint("DistanceY", 1, 3, 5, 3, Q("6.55 in")))
sketch4.addConstraint(Sketcher.Constraint("DistanceY", 11, 3, 15, 3, Q("4.55 in")))
sketch4.addConstraint(Sketcher.Constraint("DistanceY", 0, 3, -1, 1, Q("143.550655 mm")))
pocket2 = body.newObject("PartDesign::Pocket", "Pocket001")
pocket2.Profile = sketch4
pocket2.Type = "ThroughAll"
pocket2.Reversed = True

# Sketch on XZ plane
sketch5 = body.newObject("Sketcher::SketchObject", "Sketch004")
sketch5.AttachmentSupport = (doc.getObject("XZ_Plane"), [""])
sketch5.MapMode = "FlatFace"
sketch5.AttachmentOffset = App.Placement(V(0, 0, -0.125 * 25.4), App.Rotation())
sketch5.addGeometry(Part.LineSegment(V(-127, -27, 0), V(-127, 80, 0)), False)
sketch5.addGeometry(Part.LineSegment(V(-127, 80, 0), V(127, 80, 0)), False)
sketch5.addGeometry(Part.LineSegment(V(127, 80, 0), V(127, -27, 0)), False)
sketch5.addGeometry(Part.LineSegment(V(127, -27, 0), V(-127, -27, 0)), False)
sketch5.addConstraint(Sketcher.Constraint("Coincident", 0, 2, 1, 1))
sketch5.addConstraint(Sketcher.Constraint("Coincident", 1, 2, 2, 1))
sketch5.addConstraint(Sketcher.Constraint("Coincident", 2, 2, 3, 1))
sketch5.addConstraint(Sketcher.Constraint("Coincident", 3, 2, 0, 1))
sketch5.addConstraint(Sketcher.Constraint("Vertical", 0))
sketch5.addConstraint(Sketcher.Constraint("Horizontal", 1))
sketch5.addConstraint(Sketcher.Constraint("Vertical", 2))
sketch5.addConstraint(Sketcher.Constraint("Horizontal", 3))
sketch5.addConstraint(Sketcher.Constraint("DistanceX", 1, 1, 1, 2, Q("10 in")))
sketch5.addConstraint(Sketcher.Constraint("DistanceX", 0, 2, -1, 1, Q("5 in")))
sketch5.addConstraint(Sketcher.Constraint("DistanceY", 0, 1, 0, 2, Q("106.8804 mm")))
sketch5.addConstraint(Sketcher.Constraint("DistanceY", -1, 1, 0, 2, Q("79.615468 mm")))
pocket3 = body.newObject("PartDesign::Pocket", "Pocket002")
pocket3.Profile = sketch5
pocket3.Type = "ThroughAll"
pocket3.Reversed = True

doc.recompute()
